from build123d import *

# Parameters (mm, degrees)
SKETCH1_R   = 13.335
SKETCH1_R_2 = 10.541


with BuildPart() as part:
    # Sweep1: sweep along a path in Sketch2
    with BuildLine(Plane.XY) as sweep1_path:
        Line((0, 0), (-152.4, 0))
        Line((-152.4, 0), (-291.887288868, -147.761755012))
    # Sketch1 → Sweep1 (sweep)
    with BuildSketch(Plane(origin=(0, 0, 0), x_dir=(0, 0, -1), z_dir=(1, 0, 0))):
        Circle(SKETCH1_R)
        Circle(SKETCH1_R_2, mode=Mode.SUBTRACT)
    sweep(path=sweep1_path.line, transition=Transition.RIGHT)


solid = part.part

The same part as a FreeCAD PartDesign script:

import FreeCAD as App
import Part
import Sketcher

V = App.Vector
Q = App.Units.Quantity

doc = App.newDocument("Part")
body = doc.addObject("PartDesign::Body", "Body")

sketch1 = doc.addObject("Sketcher::SketchObject", "Sketch")
body.addObject(sketch1)
sketch1.AttachmentSupport = (doc.YZ_Plane, [""])
sketch1.MapMode = "FlatFace"
sketch1.addGeometry(Part.Circle(V(0, 0, 0), V(0, 0, 1), 13), False)
sketch1.addGeometry(Part.Circle(V(0, 0, 0), V(0, 0, 1), 11), False)
sketch1.addConstraint(Sketcher.Constraint("Coincident", 0, 3, -1, 1))
sketch1.addConstraint(Sketcher.Constraint("Coincident", 1, 3, -1, 1))
sketch1.addConstraint(Sketcher.Constraint("Diameter", 0, Q("1.05 in")))
sketch1.addConstraint(Sketcher.Constraint("Diameter", 1, Q("0.83 in")))

sketch2 = doc.addObject("Sketcher::SketchObject", "Sketch001")
body.addObject(sketch2)
sketch2.AttachmentSupport = (doc.XY_Plane, [""])
sketch2.MapMode = "FlatFace"
sketch2.addGeometry(Part.LineSegment(V(0, 0, 0), V(-152, 0, 0)), False)
sketch2.addGeometry(Part.LineSegment(V(-152, 0, 0), V(-292, -148, 0)), False)
sketch2.addConstraint(Sketcher.Constraint("Coincident", 0, 2, 1, 1))
sketch2.addConstraint(Sketcher.Constraint("Horizontal", 0))
sketch2.addConstraint(Sketcher.Constraint("Coincident", 0, 1, -1, 1))
sketch2.addConstraint(Sketcher.Constraint("DistanceX", 0, 2, 0, 1, Q("6 in")))
sketch2.addConstraint(Sketcher.Constraint("Distance", 1, Q("8 in")))
sketch2.addConstraint(Sketcher.Constraint("Angle", 1, Q("-133.35 deg")))
doc.recompute()

additivepipe = doc.addObject("PartDesign::AdditivePipe", "AdditivePipe")
body.addObject(additivepipe)
additivepipe.Profile = sketch1
additivepipe.Spine = (sketch2, ["Edge1", "Edge2"])
additivepipe.Transition = "Right corner"

doc.recompute()
